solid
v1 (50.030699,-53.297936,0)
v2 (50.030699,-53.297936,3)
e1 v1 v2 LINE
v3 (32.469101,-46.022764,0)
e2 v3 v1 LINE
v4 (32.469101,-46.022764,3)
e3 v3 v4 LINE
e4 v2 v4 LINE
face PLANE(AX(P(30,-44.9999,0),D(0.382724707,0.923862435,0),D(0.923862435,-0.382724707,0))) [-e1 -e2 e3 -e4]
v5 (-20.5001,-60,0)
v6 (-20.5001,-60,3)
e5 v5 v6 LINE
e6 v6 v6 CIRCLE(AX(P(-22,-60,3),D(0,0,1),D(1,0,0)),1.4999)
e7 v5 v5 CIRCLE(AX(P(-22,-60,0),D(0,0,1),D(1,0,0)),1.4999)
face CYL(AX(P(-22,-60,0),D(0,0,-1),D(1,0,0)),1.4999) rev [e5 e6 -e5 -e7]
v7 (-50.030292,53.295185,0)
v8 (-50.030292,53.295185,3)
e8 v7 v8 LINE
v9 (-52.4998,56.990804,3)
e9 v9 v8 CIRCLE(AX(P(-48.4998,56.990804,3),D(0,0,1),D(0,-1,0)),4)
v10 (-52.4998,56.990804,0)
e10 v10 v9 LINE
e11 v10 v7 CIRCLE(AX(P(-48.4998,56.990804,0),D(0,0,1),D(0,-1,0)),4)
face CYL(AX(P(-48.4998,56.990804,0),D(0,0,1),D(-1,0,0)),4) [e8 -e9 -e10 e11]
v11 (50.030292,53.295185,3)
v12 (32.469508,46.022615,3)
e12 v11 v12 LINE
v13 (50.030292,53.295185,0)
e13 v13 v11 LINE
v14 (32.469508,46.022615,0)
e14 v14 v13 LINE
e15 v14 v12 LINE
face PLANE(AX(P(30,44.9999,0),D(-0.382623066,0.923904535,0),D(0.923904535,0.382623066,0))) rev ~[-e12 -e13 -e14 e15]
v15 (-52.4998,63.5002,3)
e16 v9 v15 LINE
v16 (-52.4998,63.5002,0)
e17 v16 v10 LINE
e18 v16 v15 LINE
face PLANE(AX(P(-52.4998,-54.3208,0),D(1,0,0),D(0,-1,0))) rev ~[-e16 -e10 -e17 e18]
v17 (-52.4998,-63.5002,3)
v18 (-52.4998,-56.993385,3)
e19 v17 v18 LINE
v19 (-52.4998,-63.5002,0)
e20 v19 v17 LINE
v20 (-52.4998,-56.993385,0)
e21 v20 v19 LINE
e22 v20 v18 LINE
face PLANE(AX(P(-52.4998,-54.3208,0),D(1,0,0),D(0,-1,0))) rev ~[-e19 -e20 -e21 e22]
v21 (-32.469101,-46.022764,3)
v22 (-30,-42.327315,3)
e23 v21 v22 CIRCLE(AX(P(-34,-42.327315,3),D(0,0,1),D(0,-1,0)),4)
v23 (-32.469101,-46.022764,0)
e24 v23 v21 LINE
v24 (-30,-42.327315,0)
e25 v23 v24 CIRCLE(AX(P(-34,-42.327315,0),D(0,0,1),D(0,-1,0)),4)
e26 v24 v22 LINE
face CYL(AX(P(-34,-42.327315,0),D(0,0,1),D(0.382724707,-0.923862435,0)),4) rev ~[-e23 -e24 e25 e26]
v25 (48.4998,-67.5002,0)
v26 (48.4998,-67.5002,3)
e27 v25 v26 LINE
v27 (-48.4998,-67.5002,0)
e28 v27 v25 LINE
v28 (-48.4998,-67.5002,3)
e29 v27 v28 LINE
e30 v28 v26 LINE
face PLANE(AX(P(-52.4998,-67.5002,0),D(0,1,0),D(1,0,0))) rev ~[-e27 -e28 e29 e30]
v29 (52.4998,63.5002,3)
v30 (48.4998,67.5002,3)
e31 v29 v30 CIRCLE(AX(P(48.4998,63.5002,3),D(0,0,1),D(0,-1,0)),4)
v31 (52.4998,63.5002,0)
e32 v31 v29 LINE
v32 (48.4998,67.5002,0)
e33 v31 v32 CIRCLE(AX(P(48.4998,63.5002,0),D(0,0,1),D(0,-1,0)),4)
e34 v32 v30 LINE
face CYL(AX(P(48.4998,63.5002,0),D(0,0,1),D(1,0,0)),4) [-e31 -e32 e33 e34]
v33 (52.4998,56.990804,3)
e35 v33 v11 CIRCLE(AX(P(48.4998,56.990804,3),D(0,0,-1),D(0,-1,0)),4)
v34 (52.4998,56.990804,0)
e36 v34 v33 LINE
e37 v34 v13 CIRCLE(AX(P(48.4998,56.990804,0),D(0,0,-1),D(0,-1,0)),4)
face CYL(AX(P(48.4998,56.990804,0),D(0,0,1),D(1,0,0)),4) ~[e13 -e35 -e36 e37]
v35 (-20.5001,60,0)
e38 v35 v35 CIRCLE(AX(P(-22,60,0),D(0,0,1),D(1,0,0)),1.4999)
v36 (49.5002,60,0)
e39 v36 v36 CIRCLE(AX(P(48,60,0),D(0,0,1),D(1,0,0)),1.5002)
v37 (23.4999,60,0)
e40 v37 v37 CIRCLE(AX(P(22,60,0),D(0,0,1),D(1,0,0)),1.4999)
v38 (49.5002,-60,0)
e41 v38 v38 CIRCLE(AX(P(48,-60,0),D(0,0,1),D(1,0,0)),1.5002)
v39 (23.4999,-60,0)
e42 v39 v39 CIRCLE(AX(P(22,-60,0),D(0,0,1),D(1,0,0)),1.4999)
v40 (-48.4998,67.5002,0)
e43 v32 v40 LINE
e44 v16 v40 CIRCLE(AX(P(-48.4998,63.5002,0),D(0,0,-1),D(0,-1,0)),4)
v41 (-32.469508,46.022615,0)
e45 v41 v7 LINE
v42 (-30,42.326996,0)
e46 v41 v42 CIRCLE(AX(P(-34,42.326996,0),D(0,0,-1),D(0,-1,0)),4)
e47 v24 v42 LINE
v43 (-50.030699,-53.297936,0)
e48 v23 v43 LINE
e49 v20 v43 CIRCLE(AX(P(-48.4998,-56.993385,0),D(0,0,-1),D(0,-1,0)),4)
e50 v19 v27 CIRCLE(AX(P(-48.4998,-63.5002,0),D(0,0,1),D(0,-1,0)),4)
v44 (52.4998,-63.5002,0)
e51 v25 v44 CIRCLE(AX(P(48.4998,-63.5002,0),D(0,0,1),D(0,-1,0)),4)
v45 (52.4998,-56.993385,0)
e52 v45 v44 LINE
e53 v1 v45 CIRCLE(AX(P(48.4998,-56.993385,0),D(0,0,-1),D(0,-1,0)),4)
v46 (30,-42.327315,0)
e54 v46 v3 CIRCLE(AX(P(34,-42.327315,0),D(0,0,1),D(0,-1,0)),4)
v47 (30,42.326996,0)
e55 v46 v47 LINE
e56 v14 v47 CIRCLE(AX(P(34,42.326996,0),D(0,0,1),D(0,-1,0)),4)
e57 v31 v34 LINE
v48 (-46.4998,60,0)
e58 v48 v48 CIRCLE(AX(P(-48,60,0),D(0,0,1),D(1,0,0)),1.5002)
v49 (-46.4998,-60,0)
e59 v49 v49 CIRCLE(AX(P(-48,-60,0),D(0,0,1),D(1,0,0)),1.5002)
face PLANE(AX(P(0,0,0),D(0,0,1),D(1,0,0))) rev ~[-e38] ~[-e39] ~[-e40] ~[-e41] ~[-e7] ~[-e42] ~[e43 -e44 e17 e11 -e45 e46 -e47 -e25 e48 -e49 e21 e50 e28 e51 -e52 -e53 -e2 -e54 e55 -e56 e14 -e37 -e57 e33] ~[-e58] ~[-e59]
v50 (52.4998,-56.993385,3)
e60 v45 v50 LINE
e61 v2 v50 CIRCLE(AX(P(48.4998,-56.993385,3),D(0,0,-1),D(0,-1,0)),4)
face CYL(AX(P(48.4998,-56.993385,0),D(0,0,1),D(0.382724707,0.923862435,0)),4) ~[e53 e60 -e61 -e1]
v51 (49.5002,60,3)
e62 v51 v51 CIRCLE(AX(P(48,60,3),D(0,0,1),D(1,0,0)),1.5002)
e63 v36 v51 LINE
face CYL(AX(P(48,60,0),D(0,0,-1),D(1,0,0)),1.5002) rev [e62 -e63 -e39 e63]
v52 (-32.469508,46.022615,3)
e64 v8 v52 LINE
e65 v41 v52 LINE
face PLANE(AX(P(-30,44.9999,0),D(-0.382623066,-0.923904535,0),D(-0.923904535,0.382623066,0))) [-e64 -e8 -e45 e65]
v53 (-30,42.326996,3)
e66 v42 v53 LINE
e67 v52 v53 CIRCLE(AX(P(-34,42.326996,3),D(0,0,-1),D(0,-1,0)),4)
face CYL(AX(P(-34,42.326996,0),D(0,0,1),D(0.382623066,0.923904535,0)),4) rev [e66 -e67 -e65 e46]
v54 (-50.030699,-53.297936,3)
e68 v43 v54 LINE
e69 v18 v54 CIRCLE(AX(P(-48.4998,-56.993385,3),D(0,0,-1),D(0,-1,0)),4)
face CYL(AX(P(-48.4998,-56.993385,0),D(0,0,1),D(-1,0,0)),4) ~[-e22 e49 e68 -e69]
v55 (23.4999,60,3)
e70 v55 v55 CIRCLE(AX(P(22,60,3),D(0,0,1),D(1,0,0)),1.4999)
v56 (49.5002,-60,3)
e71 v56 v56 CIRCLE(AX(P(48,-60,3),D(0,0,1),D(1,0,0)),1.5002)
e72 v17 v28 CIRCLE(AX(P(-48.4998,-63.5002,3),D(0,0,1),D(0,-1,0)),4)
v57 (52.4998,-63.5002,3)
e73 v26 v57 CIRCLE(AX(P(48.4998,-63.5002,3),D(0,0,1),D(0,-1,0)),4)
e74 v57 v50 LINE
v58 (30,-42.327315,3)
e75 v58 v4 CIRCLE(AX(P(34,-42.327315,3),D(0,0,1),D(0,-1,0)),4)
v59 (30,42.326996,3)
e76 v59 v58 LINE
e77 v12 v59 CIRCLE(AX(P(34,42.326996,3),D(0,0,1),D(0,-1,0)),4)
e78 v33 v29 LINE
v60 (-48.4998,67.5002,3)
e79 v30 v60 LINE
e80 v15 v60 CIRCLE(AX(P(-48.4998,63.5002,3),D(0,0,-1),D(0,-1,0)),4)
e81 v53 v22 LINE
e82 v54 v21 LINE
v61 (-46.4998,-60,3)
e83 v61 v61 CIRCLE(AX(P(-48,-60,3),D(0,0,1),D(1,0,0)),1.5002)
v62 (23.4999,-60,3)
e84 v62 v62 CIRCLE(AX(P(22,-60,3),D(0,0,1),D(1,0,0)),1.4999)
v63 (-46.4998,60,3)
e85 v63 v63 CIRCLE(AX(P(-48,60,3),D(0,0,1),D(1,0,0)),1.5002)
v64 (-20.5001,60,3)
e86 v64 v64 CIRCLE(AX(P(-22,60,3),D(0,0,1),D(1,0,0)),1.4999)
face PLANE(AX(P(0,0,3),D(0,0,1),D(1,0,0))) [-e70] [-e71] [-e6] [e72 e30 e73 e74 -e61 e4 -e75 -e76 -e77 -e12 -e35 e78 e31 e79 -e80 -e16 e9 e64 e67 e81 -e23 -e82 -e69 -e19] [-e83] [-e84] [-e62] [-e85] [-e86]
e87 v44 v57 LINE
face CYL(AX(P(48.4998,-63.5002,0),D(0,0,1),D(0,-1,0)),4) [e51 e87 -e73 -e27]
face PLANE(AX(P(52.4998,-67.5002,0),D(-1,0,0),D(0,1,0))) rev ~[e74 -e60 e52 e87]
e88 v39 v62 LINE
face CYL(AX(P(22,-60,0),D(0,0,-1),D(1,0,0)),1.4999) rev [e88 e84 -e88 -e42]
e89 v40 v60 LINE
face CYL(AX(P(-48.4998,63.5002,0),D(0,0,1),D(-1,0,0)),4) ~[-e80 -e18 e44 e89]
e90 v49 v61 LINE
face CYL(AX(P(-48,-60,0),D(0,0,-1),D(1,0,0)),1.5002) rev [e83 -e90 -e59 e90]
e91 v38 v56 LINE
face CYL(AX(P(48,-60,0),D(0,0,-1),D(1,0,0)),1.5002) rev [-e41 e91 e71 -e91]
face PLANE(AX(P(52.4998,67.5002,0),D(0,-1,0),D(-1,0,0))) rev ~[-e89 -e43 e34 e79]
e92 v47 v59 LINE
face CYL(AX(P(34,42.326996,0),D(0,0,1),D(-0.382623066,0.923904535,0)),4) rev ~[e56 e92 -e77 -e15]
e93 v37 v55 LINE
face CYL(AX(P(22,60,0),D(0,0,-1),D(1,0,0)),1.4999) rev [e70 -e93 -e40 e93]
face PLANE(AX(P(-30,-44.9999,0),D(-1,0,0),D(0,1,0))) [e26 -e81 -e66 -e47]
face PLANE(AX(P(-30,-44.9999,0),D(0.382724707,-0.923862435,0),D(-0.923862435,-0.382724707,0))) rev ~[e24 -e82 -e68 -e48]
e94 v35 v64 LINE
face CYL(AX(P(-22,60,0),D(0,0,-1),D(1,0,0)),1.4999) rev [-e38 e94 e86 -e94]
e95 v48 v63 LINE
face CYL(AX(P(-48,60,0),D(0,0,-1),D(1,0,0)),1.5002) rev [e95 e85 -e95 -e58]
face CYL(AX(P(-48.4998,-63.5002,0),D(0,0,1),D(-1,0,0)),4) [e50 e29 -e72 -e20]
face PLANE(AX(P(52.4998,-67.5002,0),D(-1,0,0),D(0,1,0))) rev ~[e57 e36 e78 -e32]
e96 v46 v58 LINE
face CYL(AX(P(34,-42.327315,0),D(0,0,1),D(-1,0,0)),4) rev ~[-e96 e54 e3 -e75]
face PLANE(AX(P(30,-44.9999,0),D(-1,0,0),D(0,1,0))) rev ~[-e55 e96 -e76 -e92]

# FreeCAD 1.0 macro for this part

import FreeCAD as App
import Part
import Sketcher

V = App.Vector


def edges_at(feature, points):
    """Names of the edges that pass closest to the given points."""
    edges = feature.Shape.Edges
    near = lambda p: min(range(len(edges)), key=lambda i: edges[i].distToShape(Part.Vertex(*p))[0])
    return sorted({f"Edge{near(p) + 1}" for p in points})

doc = App.newDocument("Part")
params = doc.addObject("Spreadsheet::Sheet", "Params")
for row, (alias, value) in enumerate([
    ("pad1_length", "3 mm"),
    ("fillet_radius", "4 mm"),
    ("pocket1_length", "10 mm"),
    ("fillet2_radius", "4 mm"),
], start=1):
    params.set(f"A{row}", alias)
    params.set(f"B{row}", "=" + value)
    params.setAlias(f"B{row}", alias)

body = doc.addObject("PartDesign::Body", "Body")

sketch1 = body.newObject("Sketcher::SketchObject", "Sketch")
sketch1.AttachmentSupport = (doc.getObject("XY_Plane"), [""])
sketch1.MapMode = "FlatFace"
sketch1.addGeometry([
    Part.LineSegment(V(-52.4998, -67.5002, 0), V(52.4998, -67.5002, 0)),
    Part.LineSegment(V(52.4998, -67.5002, 0), V(52.4998, 67.5002, 0)),
    Part.LineSegment(V(52.4998, 67.5002, 0), V(-52.4998, 67.5002, 0)),
    Part.LineSegment(V(-52.4998, 67.5002, 0), V(-52.4998, -67.5002, 0)),
    Part.Circle(V(-48, -60, 0), V(0, 0, 1), 1.5002),
    Part.Circle(V(-22, -60, 0), V(0, 0, 1), 1.4999),
    Part.Circle(V(22, -60, 0), V(0, 0, 1), 1.4999),
    Part.Circle(V(48, -60, 0), V(0, 0, 1), 1.5002),
    Part.Circle(V(-48, 60, 0), V(0, 0, 1), 1.5002),
    Part.Circle(V(-22, 60, 0), V(0, 0, 1), 1.4999),
    Part.Circle(V(22, 60, 0), V(0, 0, 1), 1.4999),
    Part.Circle(V(48, 60, 0), V(0, 0, 1), 1.5002),
], False)
sketch1.addConstraint([
    Sketcher.Constraint("Coincident", 0, 2, 1, 1),
    Sketcher.Constraint("Coincident", 1, 2, 2, 1),
    Sketcher.Constraint("Coincident", 2, 2, 3, 1),
    Sketcher.Constraint("Coincident", 3, 2, 0, 1),
    Sketcher.Constraint("Horizontal", 0),
    Sketcher.Constraint("Vertical", 1),
    Sketcher.Constraint("Horizontal", 2),
    Sketcher.Constraint("Vertical", 3),
    Sketcher.Constraint("Equal", 5, 6),
    Sketcher.Constraint("Equal", 4, 7),
    Sketcher.Constraint("Equal", 7, 8),
    Sketcher.Constraint("Equal", 6, 9),
    Sketcher.Constraint("Equal", 9, 10),
    Sketcher.Constraint("Equal", 8, 11),
    Sketcher.Constraint("Symmetric", 7, 3, 8, 3, -1, 1),
    Sketcher.Constraint("Symmetric", 6, 3, 9, 3, -1, 1),
    Sketcher.Constraint("Symmetric", 5, 3, 10, 3, -1, 1),
    Sketcher.Constraint("Symmetric", 4, 3, 11, 3, -1, 1),
    Sketcher.Constraint("Symmetric", 0, 2, 2, 2, -1, 1),
    Sketcher.Constraint("Symmetric", 5, 3, 6, 3, -2),
    Sketcher.Constraint("Symmetric", 4, 3, 7, 3, -2),
    Sketcher.Constraint("Horizontal", 4, 3, 5, 3),
    Sketcher.Constraint("DistanceX", 4, 3, -1, 1, 48.0),
    Sketcher.Constraint("DistanceY", 4, 3, -1, 1, 60.0),
    Sketcher.Constraint("DistanceX", 5, 3, -1, 1, 22.0),
    Sketcher.Constraint("Diameter", 4, 3.0004),
    Sketcher.Constraint("Diameter", 5, 2.9998),
    Sketcher.Constraint("DistanceX", 0, 1, 0, 2, 104.9996),
    Sketcher.Constraint("DistanceY", 1, 1, 1, 2, 135.0004),
])
pad1 = body.newObject("PartDesign::Pad", "Pad")
pad1.Profile = sketch1
pad1.setExpression("Length", "Params.pad1_length")
doc.recompute()

fillet = body.newObject("PartDesign::Fillet", "Fillet")
fillet.Base = (pad1, edges_at(pad1, [
    (-52.5, 67.5, 1.5),
    (52.5, 67.5, 1.5),
    (52.5, -67.5, 1.5),
    (-52.5, -67.5, 1.5),
]))
fillet.setExpression("Radius", "Params.fillet_radius")

sketch2 = body.newObject("Sketcher::SketchObject", "Sketch001")
sketch2.AttachmentSupport = (doc.getObject("XY_Plane"), [""])
sketch2.MapMode = "FlatFace"
sketch2.addGeometry([
    Part.LineSegment(V(-52.4998, 54.3179, 0), V(-52.4998, -54.3208, 0)),
    Part.LineSegment(V(-52.4998, -54.3208, 0), V(-30, -44.9999, 0)),
    Part.LineSegment(V(-30, -44.9999, 0), V(-30, 44.9999, 0)),
    Part.LineSegment(V(-30, 44.9999, 0), V(-52.4998, 54.3179, 0)),
    Part.LineSegment(V(30, -44.9999, 0), V(52.4998, -54.3208, 0)),
    Part.LineSegment(V(52.4998, -54.3208, 0), V(52.4998, 54.3179, 0)),
    Part.LineSegment(V(52.4998, 54.3179, 0), V(30, 44.9999, 0)),
    Part.LineSegment(V(30, 44.9999, 0), V(30, -44.9999, 0)),
], False)
sketch2.addConstraint([
    Sketcher.Constraint("Coincident", 0, 2, 1, 1),
    Sketcher.Constraint("Coincident", 1, 2, 2, 1),
    Sketcher.Constraint("Coincident", 2, 2, 3, 1),
    Sketcher.Constraint("Coincident", 3, 2, 0, 1),
    Sketcher.Constraint("Coincident", 4, 2, 5, 1),
    Sketcher.Constraint("Coincident", 5, 2, 6, 1),
    Sketcher.Constraint("Coincident", 6, 2, 7, 1),
    Sketcher.Constraint("Coincident", 7, 2, 4, 1),
    Sketcher.Constraint("Vertical", 0),
    Sketcher.Constraint("Vertical", 2),
    Sketcher.Constraint("Vertical", 5),
    Sketcher.Constraint("Vertical", 7),
    Sketcher.Constraint("Symmetric", 1, 2, 6, 2, -1, 1),
    Sketcher.Constraint("Symmetric", 0, 2, 4, 2, -2),
    Sketcher.Constraint("Parallel", 3, 4),
    Sketcher.Constraint("Parallel", 1, 6),
    Sketcher.Constraint("Horizontal", 3, 2, 5, 2),
    Sketcher.Constraint("Horizontal", 2, 2, 6, 2),
    Sketcher.Constraint("DistanceX", 1, 2, -1, 1, 30.0),
    Sketcher.Constraint("DistanceY", 1, 2, -1, 1, 45.0),
    Sketcher.Constraint("Distance", 1, 24.354),
    Sketcher.Constraint("DistanceY", 0, 2, 0, 1, 108.6387),
])
pocket1 = body.newObject("PartDesign::Pocket", "Pocket")
pocket1.Profile = sketch2
pocket1.setExpression("Length", "Params.pocket1_length")
pocket1.Reversed = True
doc.recompute()

fillet2 = body.newObject("PartDesign::Fillet", "Fillet001")
fillet2.Base = (pocket1, edges_at(pocket1, [
    (52.5, 54.318, 1.5),
    (30, 45, 1.5),
    (-30, 45, 1.5),
    (-52.5, 54.318, 1.5),
    (-30, -45, 1.5),
    (-52.5, -54.321, 1.5),
    (30, -45, 1.5),
    (52.5, -54.321, 1.5),
]))
fillet2.setExpression("Radius", "Params.fillet2_radius")

doc.recompute()
